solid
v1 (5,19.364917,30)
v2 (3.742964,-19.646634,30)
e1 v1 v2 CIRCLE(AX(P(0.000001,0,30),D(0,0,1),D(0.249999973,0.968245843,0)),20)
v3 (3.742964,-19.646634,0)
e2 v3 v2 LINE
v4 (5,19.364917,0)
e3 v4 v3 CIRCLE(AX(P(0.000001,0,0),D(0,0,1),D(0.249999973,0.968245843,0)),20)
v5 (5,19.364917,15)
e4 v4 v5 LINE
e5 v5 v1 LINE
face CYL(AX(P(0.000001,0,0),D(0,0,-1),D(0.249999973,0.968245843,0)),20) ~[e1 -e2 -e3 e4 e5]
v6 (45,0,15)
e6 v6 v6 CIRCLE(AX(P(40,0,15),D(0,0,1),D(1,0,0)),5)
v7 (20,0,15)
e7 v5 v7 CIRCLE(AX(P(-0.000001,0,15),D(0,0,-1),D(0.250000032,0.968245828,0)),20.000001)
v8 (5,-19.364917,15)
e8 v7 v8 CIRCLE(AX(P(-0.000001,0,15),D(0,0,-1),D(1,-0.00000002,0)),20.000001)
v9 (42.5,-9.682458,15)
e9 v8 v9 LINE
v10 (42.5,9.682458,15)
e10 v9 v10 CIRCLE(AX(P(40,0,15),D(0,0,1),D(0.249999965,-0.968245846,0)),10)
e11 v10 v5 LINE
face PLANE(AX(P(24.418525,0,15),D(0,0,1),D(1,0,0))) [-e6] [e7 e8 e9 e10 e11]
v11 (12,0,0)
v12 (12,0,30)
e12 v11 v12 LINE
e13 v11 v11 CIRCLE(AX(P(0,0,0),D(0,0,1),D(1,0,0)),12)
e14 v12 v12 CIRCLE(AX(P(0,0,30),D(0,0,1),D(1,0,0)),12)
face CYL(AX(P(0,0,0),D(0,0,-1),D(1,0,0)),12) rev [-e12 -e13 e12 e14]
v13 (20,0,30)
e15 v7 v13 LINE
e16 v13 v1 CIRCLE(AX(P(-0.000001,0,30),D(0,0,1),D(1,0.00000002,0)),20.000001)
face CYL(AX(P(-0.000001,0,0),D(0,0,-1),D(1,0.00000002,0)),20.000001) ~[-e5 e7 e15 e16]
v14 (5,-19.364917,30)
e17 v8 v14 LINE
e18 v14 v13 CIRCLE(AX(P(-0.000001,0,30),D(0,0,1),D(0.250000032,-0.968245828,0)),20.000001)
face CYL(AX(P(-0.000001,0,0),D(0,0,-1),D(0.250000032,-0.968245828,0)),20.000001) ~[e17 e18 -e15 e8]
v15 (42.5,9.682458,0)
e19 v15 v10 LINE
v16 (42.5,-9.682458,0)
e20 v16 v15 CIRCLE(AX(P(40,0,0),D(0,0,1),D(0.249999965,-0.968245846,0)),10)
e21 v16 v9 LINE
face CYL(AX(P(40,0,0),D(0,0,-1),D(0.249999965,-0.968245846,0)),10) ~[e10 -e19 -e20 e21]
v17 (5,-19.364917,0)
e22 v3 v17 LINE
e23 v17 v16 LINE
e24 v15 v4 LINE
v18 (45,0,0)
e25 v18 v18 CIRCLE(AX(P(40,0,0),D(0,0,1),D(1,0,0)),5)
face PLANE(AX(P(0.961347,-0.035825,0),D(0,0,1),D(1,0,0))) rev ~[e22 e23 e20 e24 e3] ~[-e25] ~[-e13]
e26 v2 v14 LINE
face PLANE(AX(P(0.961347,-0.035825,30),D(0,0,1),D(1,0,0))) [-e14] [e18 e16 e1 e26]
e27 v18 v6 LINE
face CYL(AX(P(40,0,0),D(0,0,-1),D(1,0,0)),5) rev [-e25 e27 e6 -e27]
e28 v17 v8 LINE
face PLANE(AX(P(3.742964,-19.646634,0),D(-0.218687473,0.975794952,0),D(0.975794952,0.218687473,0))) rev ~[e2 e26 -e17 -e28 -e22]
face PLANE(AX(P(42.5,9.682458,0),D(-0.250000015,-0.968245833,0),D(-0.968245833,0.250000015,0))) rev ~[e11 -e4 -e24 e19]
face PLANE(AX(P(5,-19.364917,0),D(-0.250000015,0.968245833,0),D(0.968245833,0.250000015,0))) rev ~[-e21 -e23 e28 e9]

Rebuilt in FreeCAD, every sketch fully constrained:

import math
import FreeCAD as App
import Part
import Sketcher
from FreeCAD import Vector
Q = App.Units.Quantity

doc = App.newDocument("Part")
body = doc.addObject("PartDesign::Body", "Body")

# Sketch on XY plane
sketch1 = body.newObject("Sketcher::SketchObject", "Sketch")
sketch1.AttachmentSupport = (doc.getObject("XY_Plane"), [""])
sketch1.MapMode = "FlatFace"
sketch1.addGeometry(Part.ArcOfCircle(Part.Circle(Vector(0, 0, 0), Vector(0, 0, 1), 20), math.radians(0), math.radians(76)), False)
sketch1.addGeometry(Part.ArcOfCircle(Part.Circle(Vector(0, 0, 0), Vector(0, 0, 1), 20), math.radians(-76), math.radians(0)), False)
sketch1.addGeometry(Part.LineSegment(Vector(5, -19, 0), Vector(42, -10, 0)), False)
sketch1.addGeometry(Part.ArcOfCircle(Part.Circle(Vector(40, 0, 0), Vector(0, 0, 1), 10), math.radians(-76), math.radians(76)), False)
sketch1.addGeometry(Part.LineSegment(Vector(42, 10, 0), Vector(5, 19, 0)), False)
sketch1.addGeometry(Part.Circle(Vector(40, 0, 0), Vector(0, 0, 1), 5), False)
sketch1.addConstraint(Sketcher.Constraint("Tangent", 0, 1, 1, 2))
sketch1.addConstraint(Sketcher.Constraint("Tangent", 1, 1, 2, 1))
sketch1.addConstraint(Sketcher.Constraint("Tangent", 2, 2, 3, 1))
sketch1.addConstraint(Sketcher.Constraint("Tangent", 3, 2, 4, 1))
sketch1.addConstraint(Sketcher.Constraint("Tangent", 4, 2, 0, 2))
sketch1.addConstraint(Sketcher.Constraint("Coincident", 0, 3, -1, 1))
sketch1.addConstraint(Sketcher.Constraint("Coincident", 5, 3, 3, 3))
sketch1.addConstraint(Sketcher.Constraint("Equal", 0, 1))
sketch1.addConstraint(Sketcher.Constraint("PointOnObject", 3, 3, -1))
sketch1.addConstraint(Sketcher.Constraint("PointOnObject", 0, 1, -1))
sketch1.addConstraint(Sketcher.Constraint("Diameter", 5, Q("10 mm")))
sketch1.addConstraint(Sketcher.Constraint("Radius", 0, Q("20.000001 mm")))
sketch1.addConstraint(Sketcher.Constraint("Radius", 3, Q("10 mm")))
sketch1.addConstraint(Sketcher.Constraint("DistanceX", -1, 1, 3, 3, Q("40 mm")))
pad1 = body.newObject("PartDesign::Pad", "Pad")
pad1.Profile = sketch1
pad1.Length = 15

# Sketch on XY plane
sketch2 = body.newObject("Sketcher::SketchObject", "Sketch001")
sketch2.AttachmentSupport = (doc.getObject("XY_Plane"), [""])
sketch2.MapMode = "FlatFace"
sketch2.addGeometry(Part.ArcOfCircle(Part.Circle(Vector(0, 0, 0), Vector(0, 0, 1), 20), math.radians(-76), math.radians(0)), False)
sketch2.addGeometry(Part.ArcOfCircle(Part.Circle(Vector(0, 0, 0), Vector(0, 0, 1), 20), math.radians(0), math.radians(76)), False)
sketch2.addGeometry(Part.ArcOfCircle(Part.Circle(Vector(0, 0, 0), Vector(0, 0, 1), 20), math.radians(76), math.radians(281)), False)
sketch2.addGeometry(Part.LineSegment(Vector(3.7, -19.6, 0), Vector(5, -19.4, 0)), False)
sketch2.addGeometry(Part.Circle(Vector(0, 0, 0), Vector(0, 0, 1), 12), False)
sketch2.addConstraint(Sketcher.Constraint("Tangent", 0, 2, 1, 1))
sketch2.addConstraint(Sketcher.Constraint("Tangent", 1, 2, 2, 1))
sketch2.addConstraint(Sketcher.Constraint("Coincident", 2, 2, 3, 1))
sketch2.addConstraint(Sketcher.Constraint("Coincident", 3, 2, 0, 1))
sketch2.addConstraint(Sketcher.Constraint("Coincident", 0, 3, -1, 1))
sketch2.addConstraint(Sketcher.Constraint("Coincident", 2, 3, -1, 1))
sketch2.addConstraint(Sketcher.Constraint("Coincident", 4, 3, -1, 1))
sketch2.addConstraint(Sketcher.Constraint("PointOnObject", 0, 2, -1))
sketch2.addConstraint(Sketcher.Constraint("Vertical", 1, 2, 3, 2))
sketch2.addConstraint(Sketcher.Constraint("Diameter", 4, Q("24 mm")))
sketch2.addConstraint(Sketcher.Constraint("Radius", 0, Q("20.000001 mm")))
sketch2.addConstraint(Sketcher.Constraint("DistanceX", -1, 1, 1, 2, Q("5 mm")))
sketch2.addConstraint(Sketcher.Constraint("Distance", 3, Q("1.288217 mm")))
pad2 = body.newObject("PartDesign::Pad", "Pad001")
pad2.Profile = sketch2
pad2.Length = 30

doc.recompute()
